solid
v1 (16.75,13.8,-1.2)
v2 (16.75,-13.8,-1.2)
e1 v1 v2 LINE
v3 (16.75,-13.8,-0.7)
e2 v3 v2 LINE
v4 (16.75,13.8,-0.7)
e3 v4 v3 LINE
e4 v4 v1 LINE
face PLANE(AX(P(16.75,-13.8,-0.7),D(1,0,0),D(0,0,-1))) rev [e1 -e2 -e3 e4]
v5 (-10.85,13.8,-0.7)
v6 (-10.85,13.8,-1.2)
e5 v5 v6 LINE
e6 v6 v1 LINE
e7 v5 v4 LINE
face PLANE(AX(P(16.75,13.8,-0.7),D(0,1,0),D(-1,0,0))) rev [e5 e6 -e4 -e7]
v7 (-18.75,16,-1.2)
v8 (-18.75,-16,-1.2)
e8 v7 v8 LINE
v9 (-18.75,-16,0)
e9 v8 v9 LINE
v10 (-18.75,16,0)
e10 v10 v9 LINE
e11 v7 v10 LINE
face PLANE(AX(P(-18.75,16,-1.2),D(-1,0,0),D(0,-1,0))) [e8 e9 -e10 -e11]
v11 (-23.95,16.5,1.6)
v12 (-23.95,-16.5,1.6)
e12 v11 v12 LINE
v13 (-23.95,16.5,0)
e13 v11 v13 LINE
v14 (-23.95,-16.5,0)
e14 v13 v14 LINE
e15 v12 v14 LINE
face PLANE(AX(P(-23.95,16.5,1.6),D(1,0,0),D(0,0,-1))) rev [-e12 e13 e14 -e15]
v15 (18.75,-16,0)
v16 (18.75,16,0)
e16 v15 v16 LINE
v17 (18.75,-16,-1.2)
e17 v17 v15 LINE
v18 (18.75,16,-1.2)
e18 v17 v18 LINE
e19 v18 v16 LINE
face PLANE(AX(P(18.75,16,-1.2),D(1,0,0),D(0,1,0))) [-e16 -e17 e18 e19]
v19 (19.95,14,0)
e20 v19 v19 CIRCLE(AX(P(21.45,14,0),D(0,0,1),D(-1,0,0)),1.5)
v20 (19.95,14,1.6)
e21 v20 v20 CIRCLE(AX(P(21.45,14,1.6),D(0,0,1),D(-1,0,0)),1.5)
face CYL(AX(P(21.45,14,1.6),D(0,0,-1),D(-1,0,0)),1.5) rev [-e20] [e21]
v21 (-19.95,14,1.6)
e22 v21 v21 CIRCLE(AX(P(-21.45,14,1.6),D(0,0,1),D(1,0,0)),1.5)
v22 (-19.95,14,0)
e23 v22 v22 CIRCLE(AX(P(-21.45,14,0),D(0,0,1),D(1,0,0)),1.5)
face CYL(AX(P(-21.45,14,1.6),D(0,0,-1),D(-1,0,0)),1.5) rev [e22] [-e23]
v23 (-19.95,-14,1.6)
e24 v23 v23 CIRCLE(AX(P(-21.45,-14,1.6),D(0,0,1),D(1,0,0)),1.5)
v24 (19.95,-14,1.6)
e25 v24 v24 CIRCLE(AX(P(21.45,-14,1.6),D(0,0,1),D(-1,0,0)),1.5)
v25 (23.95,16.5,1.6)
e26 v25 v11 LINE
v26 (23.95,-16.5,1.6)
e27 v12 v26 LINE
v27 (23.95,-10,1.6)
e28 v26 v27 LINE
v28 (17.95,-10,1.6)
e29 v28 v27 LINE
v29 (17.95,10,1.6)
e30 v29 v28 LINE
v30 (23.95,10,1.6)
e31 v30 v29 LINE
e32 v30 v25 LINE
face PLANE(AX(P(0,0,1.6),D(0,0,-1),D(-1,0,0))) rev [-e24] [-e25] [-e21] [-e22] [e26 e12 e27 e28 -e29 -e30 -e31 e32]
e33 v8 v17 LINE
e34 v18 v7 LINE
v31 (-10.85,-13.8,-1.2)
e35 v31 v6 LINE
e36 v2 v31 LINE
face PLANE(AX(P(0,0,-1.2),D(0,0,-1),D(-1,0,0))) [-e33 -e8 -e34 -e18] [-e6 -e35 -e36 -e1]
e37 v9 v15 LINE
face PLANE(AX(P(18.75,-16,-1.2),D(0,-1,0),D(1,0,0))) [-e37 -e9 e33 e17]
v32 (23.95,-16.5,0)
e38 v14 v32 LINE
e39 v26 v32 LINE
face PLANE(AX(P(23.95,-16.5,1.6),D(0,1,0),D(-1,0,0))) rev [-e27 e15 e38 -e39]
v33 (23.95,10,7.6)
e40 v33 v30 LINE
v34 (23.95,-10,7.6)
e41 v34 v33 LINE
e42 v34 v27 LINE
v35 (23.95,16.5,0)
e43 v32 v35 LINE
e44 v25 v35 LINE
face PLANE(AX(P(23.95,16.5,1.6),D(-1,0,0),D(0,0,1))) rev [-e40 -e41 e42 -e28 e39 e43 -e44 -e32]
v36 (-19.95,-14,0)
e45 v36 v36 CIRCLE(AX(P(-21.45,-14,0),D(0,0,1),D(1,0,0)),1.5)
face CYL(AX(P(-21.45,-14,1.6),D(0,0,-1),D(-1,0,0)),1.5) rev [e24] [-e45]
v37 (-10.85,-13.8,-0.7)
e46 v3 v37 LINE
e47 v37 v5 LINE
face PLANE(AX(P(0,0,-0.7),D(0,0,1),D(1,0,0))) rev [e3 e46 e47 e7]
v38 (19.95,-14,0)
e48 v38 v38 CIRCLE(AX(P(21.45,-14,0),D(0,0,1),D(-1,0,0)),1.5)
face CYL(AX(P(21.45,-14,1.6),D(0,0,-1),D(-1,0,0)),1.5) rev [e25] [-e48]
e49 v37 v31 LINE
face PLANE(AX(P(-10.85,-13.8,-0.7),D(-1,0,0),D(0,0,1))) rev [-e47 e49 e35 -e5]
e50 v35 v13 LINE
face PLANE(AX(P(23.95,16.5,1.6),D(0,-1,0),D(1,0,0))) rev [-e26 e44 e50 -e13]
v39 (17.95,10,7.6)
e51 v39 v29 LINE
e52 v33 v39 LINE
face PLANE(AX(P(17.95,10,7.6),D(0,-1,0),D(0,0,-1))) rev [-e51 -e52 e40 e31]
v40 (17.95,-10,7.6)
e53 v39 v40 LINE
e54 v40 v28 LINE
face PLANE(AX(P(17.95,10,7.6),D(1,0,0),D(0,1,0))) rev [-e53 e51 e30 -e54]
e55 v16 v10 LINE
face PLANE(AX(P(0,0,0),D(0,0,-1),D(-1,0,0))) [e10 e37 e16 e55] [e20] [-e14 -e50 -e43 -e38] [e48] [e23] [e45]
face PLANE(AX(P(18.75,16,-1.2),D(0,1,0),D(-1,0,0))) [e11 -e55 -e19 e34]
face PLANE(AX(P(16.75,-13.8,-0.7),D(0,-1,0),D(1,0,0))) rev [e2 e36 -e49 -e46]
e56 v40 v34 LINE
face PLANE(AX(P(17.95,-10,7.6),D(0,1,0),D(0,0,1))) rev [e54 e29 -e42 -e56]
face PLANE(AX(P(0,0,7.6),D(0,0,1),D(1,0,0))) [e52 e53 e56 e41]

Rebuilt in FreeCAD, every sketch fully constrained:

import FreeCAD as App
import Part
import Sketcher
Q = App.Units.Quantity

doc = App.newDocument("Part")
params = doc.addObject("Spreadsheet::Sheet", "Params")
for row, (alias, value) in enumerate([
    ("sketch1_diameter", "3 mm"),
    ("sketch1_height", "33 mm"),
    ("sketch1_width", "47.9 mm"),
    ("pad1_length", "1.6 mm"),
    ("sketch2_height", "32 mm"),
    ("sketch2_width", "37.5 mm"),
    ("pad2_length", "1.2 mm"),
    ("sketch3_width", "27.6 mm"),
    ("pocket1_length", "0.5 mm"),
    ("sketch4_width", "6 mm"),
    ("sketch4_height", "20 mm"),
    ("pad3_length", "6 mm"),
], start=1):
    params.set(f"A{row}", alias)
    params.set(f"B{row}", "=" + value)
    params.setAlias(f"B{row}", alias)

body = doc.addObject("PartDesign::Body", "Body")

sketch1 = doc.addObject("Sketcher::SketchObject", "Sketch")
body.addObject(sketch1)
sketch1.AttachmentSupport = (doc.XY_Plane, [""])
sketch1.MapMode = "FlatFace"
sketch1.addGeometry([
    Part.LineSegment(App.Vector(-23.9, 16.5, 0), App.Vector(-23.9, -16.5, 0)),
    Part.LineSegment(App.Vector(-23.9, -16.5, 0), App.Vector(23.9, -16.5, 0)),
    Part.LineSegment(App.Vector(23.9, -16.5, 0), App.Vector(23.9, 16.5, 0)),
    Part.LineSegment(App.Vector(23.9, 16.5, 0), App.Vector(-23.9, 16.5, 0)),
    Part.Circle(App.Vector(-21.4, -14, 0), App.Vector(0, 0, 1), 1.5),
    Part.Circle(App.Vector(21.4, -14, 0), App.Vector(0, 0, 1), 1.5),
    Part.Circle(App.Vector(-21.4, 14, 0), App.Vector(0, 0, 1), 1.5),
    Part.Circle(App.Vector(21.4, 14, 0), App.Vector(0, 0, 1), 1.5),
], False)
sketch1.addConstraint([
    Sketcher.Constraint("Coincident", 0, 2, 1, 1),
    Sketcher.Constraint("Coincident", 1, 2, 2, 1),
    Sketcher.Constraint("Coincident", 2, 2, 3, 1),
    Sketcher.Constraint("Coincident", 3, 2, 0, 1),
    Sketcher.Constraint("Vertical", 0),
    Sketcher.Constraint("Horizontal", 1),
    Sketcher.Constraint("Vertical", 2),
    Sketcher.Constraint("Horizontal", 3),
    Sketcher.Constraint("Equal", 4, 5),
    Sketcher.Constraint("Equal", 5, 6),
    Sketcher.Constraint("Equal", 6, 7),
    Sketcher.Constraint("Symmetric", 5, 3, 6, 3, -1, 1),
    Sketcher.Constraint("Symmetric", 4, 3, 7, 3, -1, 1),
    Sketcher.Constraint("Symmetric", 0, 2, 2, 2, -1, 1),
    Sketcher.Constraint("Symmetric", 4, 3, 5, 3, -2),
    Sketcher.Constraint("Diameter", 4, Q("3 mm")),
    Sketcher.Constraint("DistanceY", 0, 2, 0, 1, Q("33 mm")),
    Sketcher.Constraint("DistanceX", 1, 1, 1, 2, Q("47.9 mm")),
    Sketcher.Constraint("DistanceY", 4, 3, -1, 1, Q("14 mm")),
    Sketcher.Constraint("DistanceX", 4, 3, 5, 3, Q("42.9 mm")),
])
sketch1.setExpression("Constraints[15]", "Params.sketch1_diameter")
sketch1.setExpression("Constraints[16]", "Params.sketch1_height")
sketch1.setExpression("Constraints[17]", "Params.sketch1_width")
pad1 = doc.addObject("PartDesign::Pad", "Pad")
body.addObject(pad1)
pad1.Profile = sketch1
pad1.setExpression("Length", "Params.pad1_length")

sketch2 = doc.addObject("Sketcher::SketchObject", "Sketch001")
body.addObject(sketch2)
sketch2.AttachmentSupport = (doc.XY_Plane, [""])
sketch2.MapMode = "FlatFace"
sketch2.addGeometry([
    Part.LineSegment(App.Vector(-19, 16, 0), App.Vector(-19, -16, 0)),
    Part.LineSegment(App.Vector(-19, -16, 0), App.Vector(19, -16, 0)),
    Part.LineSegment(App.Vector(19, -16, 0), App.Vector(19, 16, 0)),
    Part.LineSegment(App.Vector(19, 16, 0), App.Vector(-19, 16, 0)),
], False)
sketch2.addConstraint([
    Sketcher.Constraint("Coincident", 0, 2, 1, 1),
    Sketcher.Constraint("Coincident", 1, 2, 2, 1),
    Sketcher.Constraint("Coincident", 2, 2, 3, 1),
    Sketcher.Constraint("Coincident", 3, 2, 0, 1),
    Sketcher.Constraint("Vertical", 0),
    Sketcher.Constraint("Horizontal", 1),
    Sketcher.Constraint("Vertical", 2),
    Sketcher.Constraint("Horizontal", 3),
    Sketcher.Constraint("Symmetric", 0, 2, 2, 2, -1, 1),
    Sketcher.Constraint("DistanceY", 0, 2, 0, 1, Q("32 mm")),
    Sketcher.Constraint("DistanceX", 1, 1, 1, 2, Q("37.5 mm")),
])
sketch2.setExpression("Constraints[9]", "Params.sketch2_height")
sketch2.setExpression("Constraints[10]", "Params.sketch2_width")
pad2 = doc.addObject("PartDesign::Pad", "Pad001")
body.addObject(pad2)
pad2.Profile = sketch2
pad2.setExpression("Length", "Params.pad2_length")
pad2.Reversed = True

sketch3 = doc.addObject("Sketcher::SketchObject", "Sketch002")
body.addObject(sketch3)
sketch3.AttachmentSupport = (doc.XY_Plane, [""])
sketch3.MapMode = "FlatFace"
sketch3.AttachmentOffset = App.Placement(App.Vector(0, 0, -1.2), App.Rotation())
sketch3.addGeometry([
    Part.LineSegment(App.Vector(17, 14, 0), App.Vector(17, -14, 0)),
    Part.LineSegment(App.Vector(17, -14, 0), App.Vector(-11, -14, 0)),
    Part.LineSegment(App.Vector(-11, -14, 0), App.Vector(-11, 14, 0)),
    Part.LineSegment(App.Vector(-11, 14, 0), App.Vector(17, 14, 0)),
], False)
sketch3.addConstraint([
    Sketcher.Constraint("Coincident", 0, 2, 1, 1),
    Sketcher.Constraint("Coincident", 1, 2, 2, 1),
    Sketcher.Constraint("Coincident", 2, 2, 3, 1),
    Sketcher.Constraint("Coincident", 3, 2, 0, 1),
    Sketcher.Constraint("Vertical", 0),
    Sketcher.Constraint("Horizontal", 1),
    Sketcher.Constraint("Vertical", 2),
    Sketcher.Constraint("Horizontal", 3),
    Sketcher.Constraint("Equal", 3, 0),
    Sketcher.Constraint("DistanceX", 1, 2, 1, 1, Q("27.6 mm")),
    Sketcher.Constraint("DistanceY", 0, 2, -1, 1, Q("13.8 mm")),
    Sketcher.Constraint("DistanceX", -1, 1, 0, 2, Q("16.75 mm")),
])
sketch3.setExpression("Constraints[9]", "Params.sketch3_width")
pocket1 = doc.addObject("PartDesign::Pocket", "Pocket")
body.addObject(pocket1)
pocket1.Profile = sketch3
pocket1.setExpression("Length", "Params.pocket1_length")
pocket1.Reversed = True

sketch4 = doc.addObject("Sketcher::SketchObject", "Sketch003")
body.addObject(sketch4)
sketch4.AttachmentSupport = (doc.XY_Plane, [""])
sketch4.MapMode = "FlatFace"
sketch4.AttachmentOffset = App.Placement(App.Vector(0, 0, 1.6), App.Rotation())
sketch4.addGeometry([
    Part.LineSegment(App.Vector(18, 10, 0), App.Vector(18, -10, 0)),
    Part.LineSegment(App.Vector(18, -10, 0), App.Vector(24, -10, 0)),
    Part.LineSegment(App.Vector(24, -10, 0), App.Vector(24, 10, 0)),
    Part.LineSegment(App.Vector(24, 10, 0), App.Vector(18, 10, 0)),
], False)
sketch4.addConstraint([
    Sketcher.Constraint("Coincident", 0, 2, 1, 1),
    Sketcher.Constraint("Coincident", 1, 2, 2, 1),
    Sketcher.Constraint("Coincident", 2, 2, 3, 1),
    Sketcher.Constraint("Coincident", 3, 2, 0, 1),
    Sketcher.Constraint("Vertical", 0),
    Sketcher.Constraint("Horizontal", 1),
    Sketcher.Constraint("Vertical", 2),
    Sketcher.Constraint("Horizontal", 3),
    Sketcher.Constraint("DistanceX", 1, 1, 1, 2, Q("6 mm")),
    Sketcher.Constraint("DistanceY", 0, 2, 0, 1, Q("20 mm")),
    Sketcher.Constraint("DistanceY", 0, 2, -1, 1, Q("10 mm")),
    Sketcher.Constraint("DistanceX", -1, 1, 0, 2, Q("17.95 mm")),
])
sketch4.setExpression("Constraints[8]", "Params.sketch4_width")
sketch4.setExpression("Constraints[9]", "Params.sketch4_height")
pad3 = doc.addObject("PartDesign::Pad", "Pad002")
body.addObject(pad3)
pad3.Profile = sketch4
pad3.setExpression("Length", "Params.pad3_length")

doc.recompute()
